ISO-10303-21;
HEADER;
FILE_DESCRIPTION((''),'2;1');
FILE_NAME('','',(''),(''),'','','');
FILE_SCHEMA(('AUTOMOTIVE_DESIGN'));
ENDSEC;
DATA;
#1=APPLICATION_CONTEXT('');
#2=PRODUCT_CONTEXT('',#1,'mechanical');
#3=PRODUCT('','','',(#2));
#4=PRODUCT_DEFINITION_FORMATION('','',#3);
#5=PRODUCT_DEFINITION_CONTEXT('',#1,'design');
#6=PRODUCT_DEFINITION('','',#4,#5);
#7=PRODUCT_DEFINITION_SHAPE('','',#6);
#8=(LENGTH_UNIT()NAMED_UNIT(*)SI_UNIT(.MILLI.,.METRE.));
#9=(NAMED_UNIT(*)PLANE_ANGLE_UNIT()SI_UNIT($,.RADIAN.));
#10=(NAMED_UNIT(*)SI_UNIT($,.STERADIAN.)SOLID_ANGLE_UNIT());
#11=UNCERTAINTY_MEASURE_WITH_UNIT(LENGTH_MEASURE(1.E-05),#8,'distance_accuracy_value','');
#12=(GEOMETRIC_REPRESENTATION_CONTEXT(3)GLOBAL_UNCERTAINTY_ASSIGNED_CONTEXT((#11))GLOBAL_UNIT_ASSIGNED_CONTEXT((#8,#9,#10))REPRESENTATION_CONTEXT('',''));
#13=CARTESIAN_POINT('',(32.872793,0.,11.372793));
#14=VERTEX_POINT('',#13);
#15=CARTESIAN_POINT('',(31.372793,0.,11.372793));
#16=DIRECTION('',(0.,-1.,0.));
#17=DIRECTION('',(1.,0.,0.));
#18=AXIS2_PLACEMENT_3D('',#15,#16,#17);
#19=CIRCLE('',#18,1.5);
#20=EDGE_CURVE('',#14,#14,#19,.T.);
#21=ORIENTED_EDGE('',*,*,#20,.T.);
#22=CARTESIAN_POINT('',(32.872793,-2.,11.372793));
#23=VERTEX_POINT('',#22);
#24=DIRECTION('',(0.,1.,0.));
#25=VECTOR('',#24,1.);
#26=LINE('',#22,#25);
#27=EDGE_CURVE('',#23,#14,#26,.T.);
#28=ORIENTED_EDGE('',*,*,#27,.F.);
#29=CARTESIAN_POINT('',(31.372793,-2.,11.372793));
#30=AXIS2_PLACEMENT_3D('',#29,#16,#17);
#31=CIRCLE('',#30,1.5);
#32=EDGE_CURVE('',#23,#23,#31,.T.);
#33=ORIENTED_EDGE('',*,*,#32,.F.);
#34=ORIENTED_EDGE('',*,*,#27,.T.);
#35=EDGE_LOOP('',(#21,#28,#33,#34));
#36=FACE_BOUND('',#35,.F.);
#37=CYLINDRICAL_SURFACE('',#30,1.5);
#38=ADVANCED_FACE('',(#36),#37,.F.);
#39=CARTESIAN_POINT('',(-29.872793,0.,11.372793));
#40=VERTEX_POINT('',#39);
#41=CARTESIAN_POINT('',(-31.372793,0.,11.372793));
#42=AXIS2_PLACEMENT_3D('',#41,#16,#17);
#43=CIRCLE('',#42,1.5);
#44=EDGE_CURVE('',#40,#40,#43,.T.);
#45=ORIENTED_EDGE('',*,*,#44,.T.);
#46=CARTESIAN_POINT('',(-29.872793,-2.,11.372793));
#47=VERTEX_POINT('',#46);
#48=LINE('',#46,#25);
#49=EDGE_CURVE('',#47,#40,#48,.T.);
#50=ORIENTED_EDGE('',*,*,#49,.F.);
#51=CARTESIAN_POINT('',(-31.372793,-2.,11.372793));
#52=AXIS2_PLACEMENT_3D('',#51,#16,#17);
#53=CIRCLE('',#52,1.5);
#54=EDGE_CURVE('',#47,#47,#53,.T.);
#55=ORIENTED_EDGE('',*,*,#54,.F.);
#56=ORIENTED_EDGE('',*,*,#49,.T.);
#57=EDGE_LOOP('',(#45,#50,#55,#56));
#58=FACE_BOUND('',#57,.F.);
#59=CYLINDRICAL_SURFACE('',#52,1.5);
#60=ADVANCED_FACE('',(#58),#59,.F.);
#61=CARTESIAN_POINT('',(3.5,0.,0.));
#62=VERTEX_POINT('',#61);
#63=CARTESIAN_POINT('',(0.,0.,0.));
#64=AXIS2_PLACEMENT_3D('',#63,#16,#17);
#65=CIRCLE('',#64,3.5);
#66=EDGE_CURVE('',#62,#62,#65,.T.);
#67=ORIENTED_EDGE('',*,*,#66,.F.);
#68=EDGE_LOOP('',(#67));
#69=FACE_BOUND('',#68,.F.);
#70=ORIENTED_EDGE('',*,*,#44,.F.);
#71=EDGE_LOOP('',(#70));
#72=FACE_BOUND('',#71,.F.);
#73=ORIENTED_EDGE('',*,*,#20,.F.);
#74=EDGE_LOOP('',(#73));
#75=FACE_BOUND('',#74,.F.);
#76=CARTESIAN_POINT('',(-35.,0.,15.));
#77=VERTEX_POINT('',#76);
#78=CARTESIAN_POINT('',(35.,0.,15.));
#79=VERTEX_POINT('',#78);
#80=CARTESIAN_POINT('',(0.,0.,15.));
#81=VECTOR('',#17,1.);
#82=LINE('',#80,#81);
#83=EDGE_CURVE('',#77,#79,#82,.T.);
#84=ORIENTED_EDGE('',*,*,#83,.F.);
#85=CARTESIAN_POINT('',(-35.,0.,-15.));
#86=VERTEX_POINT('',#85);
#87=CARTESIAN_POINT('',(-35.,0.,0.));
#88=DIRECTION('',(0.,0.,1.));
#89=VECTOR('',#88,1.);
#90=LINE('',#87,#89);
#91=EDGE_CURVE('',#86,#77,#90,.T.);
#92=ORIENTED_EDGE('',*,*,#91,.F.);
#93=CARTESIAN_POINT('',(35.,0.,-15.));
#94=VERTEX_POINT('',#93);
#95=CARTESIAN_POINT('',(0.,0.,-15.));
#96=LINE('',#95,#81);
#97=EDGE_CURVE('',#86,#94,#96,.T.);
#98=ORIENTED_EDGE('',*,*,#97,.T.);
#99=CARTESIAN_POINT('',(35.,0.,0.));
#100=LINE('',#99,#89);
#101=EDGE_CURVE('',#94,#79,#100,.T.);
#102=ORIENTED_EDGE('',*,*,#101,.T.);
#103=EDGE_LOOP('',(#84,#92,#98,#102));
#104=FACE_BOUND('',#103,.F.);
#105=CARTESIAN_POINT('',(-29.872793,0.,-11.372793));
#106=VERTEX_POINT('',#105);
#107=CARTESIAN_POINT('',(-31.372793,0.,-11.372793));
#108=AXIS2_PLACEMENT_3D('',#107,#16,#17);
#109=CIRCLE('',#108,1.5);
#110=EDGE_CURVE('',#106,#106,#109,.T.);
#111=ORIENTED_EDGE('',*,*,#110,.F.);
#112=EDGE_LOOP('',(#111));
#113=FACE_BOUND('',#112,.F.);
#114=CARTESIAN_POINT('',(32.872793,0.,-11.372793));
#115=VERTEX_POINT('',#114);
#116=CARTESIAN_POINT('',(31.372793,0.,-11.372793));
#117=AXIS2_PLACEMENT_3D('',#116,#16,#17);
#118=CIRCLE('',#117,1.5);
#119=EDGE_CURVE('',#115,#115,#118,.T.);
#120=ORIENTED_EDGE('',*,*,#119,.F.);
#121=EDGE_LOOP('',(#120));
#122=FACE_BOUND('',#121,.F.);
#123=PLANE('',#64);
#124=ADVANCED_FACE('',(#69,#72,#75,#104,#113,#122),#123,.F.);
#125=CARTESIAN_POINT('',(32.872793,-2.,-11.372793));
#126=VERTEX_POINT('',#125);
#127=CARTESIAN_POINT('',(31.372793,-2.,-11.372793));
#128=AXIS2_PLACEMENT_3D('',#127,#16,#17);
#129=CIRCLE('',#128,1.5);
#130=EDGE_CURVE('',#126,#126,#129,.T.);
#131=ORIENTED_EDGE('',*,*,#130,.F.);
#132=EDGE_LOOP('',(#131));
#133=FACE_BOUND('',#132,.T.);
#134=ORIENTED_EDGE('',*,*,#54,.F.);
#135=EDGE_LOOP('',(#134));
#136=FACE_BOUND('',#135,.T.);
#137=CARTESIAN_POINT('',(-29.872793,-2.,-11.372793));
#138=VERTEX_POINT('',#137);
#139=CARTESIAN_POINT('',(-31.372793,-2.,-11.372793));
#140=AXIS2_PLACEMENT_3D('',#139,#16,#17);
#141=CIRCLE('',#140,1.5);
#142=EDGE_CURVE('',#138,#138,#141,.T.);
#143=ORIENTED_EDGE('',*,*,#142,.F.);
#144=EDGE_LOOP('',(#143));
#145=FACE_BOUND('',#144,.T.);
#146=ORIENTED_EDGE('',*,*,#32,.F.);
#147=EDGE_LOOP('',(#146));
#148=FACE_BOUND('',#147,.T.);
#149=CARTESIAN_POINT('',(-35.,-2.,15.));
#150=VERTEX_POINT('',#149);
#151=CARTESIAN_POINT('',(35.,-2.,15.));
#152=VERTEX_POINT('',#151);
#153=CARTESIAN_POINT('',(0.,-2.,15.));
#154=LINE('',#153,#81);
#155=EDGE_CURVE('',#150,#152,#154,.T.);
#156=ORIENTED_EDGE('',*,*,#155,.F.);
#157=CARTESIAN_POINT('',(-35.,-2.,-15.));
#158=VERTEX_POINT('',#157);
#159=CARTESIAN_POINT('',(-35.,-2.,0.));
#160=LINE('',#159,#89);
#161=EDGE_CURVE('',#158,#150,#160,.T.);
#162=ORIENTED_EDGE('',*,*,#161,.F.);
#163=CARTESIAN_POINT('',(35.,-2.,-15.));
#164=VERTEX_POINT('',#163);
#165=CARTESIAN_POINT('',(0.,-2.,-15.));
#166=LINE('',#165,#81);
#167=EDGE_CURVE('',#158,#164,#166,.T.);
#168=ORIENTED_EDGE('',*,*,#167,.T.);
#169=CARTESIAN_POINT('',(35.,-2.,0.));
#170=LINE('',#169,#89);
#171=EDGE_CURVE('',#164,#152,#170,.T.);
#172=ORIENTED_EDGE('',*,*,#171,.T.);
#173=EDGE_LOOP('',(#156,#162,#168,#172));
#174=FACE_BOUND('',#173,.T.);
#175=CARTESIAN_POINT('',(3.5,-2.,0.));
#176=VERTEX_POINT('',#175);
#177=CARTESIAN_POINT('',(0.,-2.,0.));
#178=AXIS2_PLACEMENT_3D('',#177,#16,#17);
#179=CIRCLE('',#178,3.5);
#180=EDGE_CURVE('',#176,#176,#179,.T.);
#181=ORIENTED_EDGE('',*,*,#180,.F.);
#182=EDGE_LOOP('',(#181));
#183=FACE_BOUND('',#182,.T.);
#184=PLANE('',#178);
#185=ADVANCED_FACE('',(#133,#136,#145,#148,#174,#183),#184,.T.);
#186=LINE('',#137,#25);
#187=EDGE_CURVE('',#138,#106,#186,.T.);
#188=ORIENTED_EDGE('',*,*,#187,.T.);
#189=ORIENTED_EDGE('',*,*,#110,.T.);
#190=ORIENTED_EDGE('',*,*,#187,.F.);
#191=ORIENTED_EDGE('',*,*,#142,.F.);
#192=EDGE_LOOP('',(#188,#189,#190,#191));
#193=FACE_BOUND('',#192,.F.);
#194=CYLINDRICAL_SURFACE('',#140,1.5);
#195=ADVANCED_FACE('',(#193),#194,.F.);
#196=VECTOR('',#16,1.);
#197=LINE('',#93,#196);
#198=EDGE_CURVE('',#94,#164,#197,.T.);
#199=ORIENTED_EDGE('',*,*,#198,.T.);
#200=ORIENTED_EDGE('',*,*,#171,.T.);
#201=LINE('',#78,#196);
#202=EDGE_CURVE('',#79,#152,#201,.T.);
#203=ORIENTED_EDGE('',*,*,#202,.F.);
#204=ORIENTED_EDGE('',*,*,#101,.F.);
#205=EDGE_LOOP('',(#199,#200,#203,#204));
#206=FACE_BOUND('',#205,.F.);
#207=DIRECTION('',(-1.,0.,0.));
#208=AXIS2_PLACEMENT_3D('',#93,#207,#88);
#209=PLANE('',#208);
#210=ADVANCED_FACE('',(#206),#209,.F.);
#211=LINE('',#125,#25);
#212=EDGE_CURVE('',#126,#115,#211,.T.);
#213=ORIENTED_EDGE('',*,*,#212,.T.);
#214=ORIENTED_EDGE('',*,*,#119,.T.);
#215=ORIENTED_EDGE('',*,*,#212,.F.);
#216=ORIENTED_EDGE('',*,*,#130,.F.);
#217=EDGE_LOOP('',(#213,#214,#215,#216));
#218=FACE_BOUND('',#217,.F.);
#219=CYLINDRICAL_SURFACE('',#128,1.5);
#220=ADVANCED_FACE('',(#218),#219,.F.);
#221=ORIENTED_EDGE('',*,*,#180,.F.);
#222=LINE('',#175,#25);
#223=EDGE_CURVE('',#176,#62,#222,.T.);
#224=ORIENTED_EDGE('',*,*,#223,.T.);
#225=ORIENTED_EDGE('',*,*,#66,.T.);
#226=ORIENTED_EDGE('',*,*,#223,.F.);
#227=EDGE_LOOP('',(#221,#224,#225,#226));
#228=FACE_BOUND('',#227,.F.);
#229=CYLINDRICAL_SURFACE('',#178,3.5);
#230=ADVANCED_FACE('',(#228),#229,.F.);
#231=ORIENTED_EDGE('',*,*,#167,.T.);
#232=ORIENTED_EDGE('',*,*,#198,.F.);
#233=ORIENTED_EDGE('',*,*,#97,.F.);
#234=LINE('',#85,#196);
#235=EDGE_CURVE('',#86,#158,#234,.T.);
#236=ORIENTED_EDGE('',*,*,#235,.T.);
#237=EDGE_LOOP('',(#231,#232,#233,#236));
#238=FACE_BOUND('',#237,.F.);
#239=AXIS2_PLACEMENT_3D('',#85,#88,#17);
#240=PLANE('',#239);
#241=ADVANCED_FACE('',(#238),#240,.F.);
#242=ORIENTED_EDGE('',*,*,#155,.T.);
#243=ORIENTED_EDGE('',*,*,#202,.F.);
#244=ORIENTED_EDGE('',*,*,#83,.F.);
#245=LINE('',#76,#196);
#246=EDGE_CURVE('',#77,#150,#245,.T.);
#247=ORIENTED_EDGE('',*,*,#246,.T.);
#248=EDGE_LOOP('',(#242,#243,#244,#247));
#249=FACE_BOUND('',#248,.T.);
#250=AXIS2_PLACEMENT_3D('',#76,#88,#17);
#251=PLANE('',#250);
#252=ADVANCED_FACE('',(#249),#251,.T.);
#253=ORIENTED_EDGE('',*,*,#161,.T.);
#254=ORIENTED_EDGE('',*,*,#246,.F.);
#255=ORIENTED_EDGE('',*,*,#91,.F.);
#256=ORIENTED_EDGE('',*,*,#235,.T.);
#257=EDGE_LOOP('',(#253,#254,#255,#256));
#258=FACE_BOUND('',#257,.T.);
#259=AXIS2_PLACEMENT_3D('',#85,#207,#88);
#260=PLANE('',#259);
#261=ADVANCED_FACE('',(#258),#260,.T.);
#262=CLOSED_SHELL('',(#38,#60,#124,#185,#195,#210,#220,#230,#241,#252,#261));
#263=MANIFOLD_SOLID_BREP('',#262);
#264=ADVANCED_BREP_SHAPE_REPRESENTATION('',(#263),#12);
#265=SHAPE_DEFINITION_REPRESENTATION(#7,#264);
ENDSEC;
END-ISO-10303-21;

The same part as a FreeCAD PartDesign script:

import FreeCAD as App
import Part
import Sketcher
from FreeCAD import Vector

doc = App.newDocument("Part")
body = doc.addObject("PartDesign::Body", "Body")

# Sketch on XZ plane
sketch1 = body.newObject("Sketcher::SketchObject", "Sketch")
sketch1.AttachmentSupport = (doc.getObject("XZ_Plane"), [""])
sketch1.MapMode = "FlatFace"
sketch1.addGeometry(Part.LineSegment(Vector(-35, 15, 0), Vector(-35, -15, 0)), False)
sketch1.addGeometry(Part.LineSegment(Vector(-35, -15, 0), Vector(35, -15, 0)), False)
sketch1.addGeometry(Part.LineSegment(Vector(35, -15, 0), Vector(35, 15, 0)), False)
sketch1.addGeometry(Part.LineSegment(Vector(35, 15, 0), Vector(-35, 15, 0)), False)
sketch1.addConstraint(Sketcher.Constraint("Coincident", 0, 2, 1, 1))
sketch1.addConstraint(Sketcher.Constraint("Coincident", 1, 2, 2, 1))
sketch1.addConstraint(Sketcher.Constraint("Coincident", 2, 2, 3, 1))
sketch1.addConstraint(Sketcher.Constraint("Coincident", 3, 2, 0, 1))
sketch1.addConstraint(Sketcher.Constraint("Vertical", 0))
sketch1.addConstraint(Sketcher.Constraint("Horizontal", 1))
sketch1.addConstraint(Sketcher.Constraint("Vertical", 2))
sketch1.addConstraint(Sketcher.Constraint("Horizontal", 3))
sketch1.addConstraint(Sketcher.Constraint("Symmetric", 0, 2, 2, 2, -1, 1))
sketch1.addConstraint(Sketcher.Constraint("DistanceX", 1, 1, 1, 2, 70.0))
sketch1.addConstraint(Sketcher.Constraint("DistanceY", 0, 2, 0, 1, 30.0))
pad1 = body.newObject("PartDesign::Pad", "Pad")
pad1.Profile = sketch1
pad1.Length = 2

# Sketch on XZ plane
sketch2 = body.newObject("Sketcher::SketchObject", "Sketch001")
sketch2.AttachmentSupport = (doc.getObject("XZ_Plane"), [""])
sketch2.MapMode = "FlatFace"
sketch2.AttachmentOffset = App.Placement(Vector(0, 0, 2), App.Rotation())
sketch2.addGeometry(Part.Circle(Vector(-31.4, 11.4, 0), Vector(0, 0, 1), 1.5), False)
sketch2.addGeometry(Part.Circle(Vector(31.4, 11.4, 0), Vector(0, 0, 1), 1.5), False)
sketch2.addGeometry(Part.Circle(Vector(-31.4, -11.4, 0), Vector(0, 0, 1), 1.5), False)
sketch2.addGeometry(Part.Circle(Vector(31.4, -11.4, 0), Vector(0, 0, 1), 1.5), False)
sketch2.addConstraint(Sketcher.Constraint("Equal", 0, 1))
sketch2.addConstraint(Sketcher.Constraint("Equal", 1, 2))
sketch2.addConstraint(Sketcher.Constraint("Equal", 2, 3))
sketch2.addConstraint(Sketcher.Constraint("Symmetric", 1, 3, 2, 3, -1, 1))
sketch2.addConstraint(Sketcher.Constraint("Symmetric", 0, 3, 3, 3, -1, 1))
sketch2.addConstraint(Sketcher.Constraint("Symmetric", 0, 3, 1, 3, -2))
sketch2.addConstraint(Sketcher.Constraint("Diameter", 0, 3.0))
sketch2.addConstraint(Sketcher.Constraint("DistanceX", 0, 3, -1, 1, 31.372793))
sketch2.addConstraint(Sketcher.Constraint("DistanceY", -1, 1, 0, 3, 11.372793))
pocket1 = body.newObject("PartDesign::Pocket", "Pocket")
pocket1.Profile = sketch2
pocket1.Length = 25

# Sketch on XZ plane
sketch3 = body.newObject("Sketcher::SketchObject", "Sketch002")
sketch3.AttachmentSupport = (doc.getObject("XZ_Plane"), [""])
sketch3.MapMode = "FlatFace"
sketch3.AttachmentOffset = App.Placement(Vector(0, 0, 2), App.Rotation())
sketch3.addGeometry(Part.Circle(Vector(0, 0, 0), Vector(0, 0, 1), 3.5), False)
sketch3.addConstraint(Sketcher.Constraint("Coincident", 0, 3, -1, 1))
sketch3.addConstraint(Sketcher.Constraint("Diameter", 0, 7.0))
pocket2 = body.newObject("PartDesign::Pocket", "Pocket001")
pocket2.Profile = sketch3
pocket2.Type = "ThroughAll"

doc.recompute()
